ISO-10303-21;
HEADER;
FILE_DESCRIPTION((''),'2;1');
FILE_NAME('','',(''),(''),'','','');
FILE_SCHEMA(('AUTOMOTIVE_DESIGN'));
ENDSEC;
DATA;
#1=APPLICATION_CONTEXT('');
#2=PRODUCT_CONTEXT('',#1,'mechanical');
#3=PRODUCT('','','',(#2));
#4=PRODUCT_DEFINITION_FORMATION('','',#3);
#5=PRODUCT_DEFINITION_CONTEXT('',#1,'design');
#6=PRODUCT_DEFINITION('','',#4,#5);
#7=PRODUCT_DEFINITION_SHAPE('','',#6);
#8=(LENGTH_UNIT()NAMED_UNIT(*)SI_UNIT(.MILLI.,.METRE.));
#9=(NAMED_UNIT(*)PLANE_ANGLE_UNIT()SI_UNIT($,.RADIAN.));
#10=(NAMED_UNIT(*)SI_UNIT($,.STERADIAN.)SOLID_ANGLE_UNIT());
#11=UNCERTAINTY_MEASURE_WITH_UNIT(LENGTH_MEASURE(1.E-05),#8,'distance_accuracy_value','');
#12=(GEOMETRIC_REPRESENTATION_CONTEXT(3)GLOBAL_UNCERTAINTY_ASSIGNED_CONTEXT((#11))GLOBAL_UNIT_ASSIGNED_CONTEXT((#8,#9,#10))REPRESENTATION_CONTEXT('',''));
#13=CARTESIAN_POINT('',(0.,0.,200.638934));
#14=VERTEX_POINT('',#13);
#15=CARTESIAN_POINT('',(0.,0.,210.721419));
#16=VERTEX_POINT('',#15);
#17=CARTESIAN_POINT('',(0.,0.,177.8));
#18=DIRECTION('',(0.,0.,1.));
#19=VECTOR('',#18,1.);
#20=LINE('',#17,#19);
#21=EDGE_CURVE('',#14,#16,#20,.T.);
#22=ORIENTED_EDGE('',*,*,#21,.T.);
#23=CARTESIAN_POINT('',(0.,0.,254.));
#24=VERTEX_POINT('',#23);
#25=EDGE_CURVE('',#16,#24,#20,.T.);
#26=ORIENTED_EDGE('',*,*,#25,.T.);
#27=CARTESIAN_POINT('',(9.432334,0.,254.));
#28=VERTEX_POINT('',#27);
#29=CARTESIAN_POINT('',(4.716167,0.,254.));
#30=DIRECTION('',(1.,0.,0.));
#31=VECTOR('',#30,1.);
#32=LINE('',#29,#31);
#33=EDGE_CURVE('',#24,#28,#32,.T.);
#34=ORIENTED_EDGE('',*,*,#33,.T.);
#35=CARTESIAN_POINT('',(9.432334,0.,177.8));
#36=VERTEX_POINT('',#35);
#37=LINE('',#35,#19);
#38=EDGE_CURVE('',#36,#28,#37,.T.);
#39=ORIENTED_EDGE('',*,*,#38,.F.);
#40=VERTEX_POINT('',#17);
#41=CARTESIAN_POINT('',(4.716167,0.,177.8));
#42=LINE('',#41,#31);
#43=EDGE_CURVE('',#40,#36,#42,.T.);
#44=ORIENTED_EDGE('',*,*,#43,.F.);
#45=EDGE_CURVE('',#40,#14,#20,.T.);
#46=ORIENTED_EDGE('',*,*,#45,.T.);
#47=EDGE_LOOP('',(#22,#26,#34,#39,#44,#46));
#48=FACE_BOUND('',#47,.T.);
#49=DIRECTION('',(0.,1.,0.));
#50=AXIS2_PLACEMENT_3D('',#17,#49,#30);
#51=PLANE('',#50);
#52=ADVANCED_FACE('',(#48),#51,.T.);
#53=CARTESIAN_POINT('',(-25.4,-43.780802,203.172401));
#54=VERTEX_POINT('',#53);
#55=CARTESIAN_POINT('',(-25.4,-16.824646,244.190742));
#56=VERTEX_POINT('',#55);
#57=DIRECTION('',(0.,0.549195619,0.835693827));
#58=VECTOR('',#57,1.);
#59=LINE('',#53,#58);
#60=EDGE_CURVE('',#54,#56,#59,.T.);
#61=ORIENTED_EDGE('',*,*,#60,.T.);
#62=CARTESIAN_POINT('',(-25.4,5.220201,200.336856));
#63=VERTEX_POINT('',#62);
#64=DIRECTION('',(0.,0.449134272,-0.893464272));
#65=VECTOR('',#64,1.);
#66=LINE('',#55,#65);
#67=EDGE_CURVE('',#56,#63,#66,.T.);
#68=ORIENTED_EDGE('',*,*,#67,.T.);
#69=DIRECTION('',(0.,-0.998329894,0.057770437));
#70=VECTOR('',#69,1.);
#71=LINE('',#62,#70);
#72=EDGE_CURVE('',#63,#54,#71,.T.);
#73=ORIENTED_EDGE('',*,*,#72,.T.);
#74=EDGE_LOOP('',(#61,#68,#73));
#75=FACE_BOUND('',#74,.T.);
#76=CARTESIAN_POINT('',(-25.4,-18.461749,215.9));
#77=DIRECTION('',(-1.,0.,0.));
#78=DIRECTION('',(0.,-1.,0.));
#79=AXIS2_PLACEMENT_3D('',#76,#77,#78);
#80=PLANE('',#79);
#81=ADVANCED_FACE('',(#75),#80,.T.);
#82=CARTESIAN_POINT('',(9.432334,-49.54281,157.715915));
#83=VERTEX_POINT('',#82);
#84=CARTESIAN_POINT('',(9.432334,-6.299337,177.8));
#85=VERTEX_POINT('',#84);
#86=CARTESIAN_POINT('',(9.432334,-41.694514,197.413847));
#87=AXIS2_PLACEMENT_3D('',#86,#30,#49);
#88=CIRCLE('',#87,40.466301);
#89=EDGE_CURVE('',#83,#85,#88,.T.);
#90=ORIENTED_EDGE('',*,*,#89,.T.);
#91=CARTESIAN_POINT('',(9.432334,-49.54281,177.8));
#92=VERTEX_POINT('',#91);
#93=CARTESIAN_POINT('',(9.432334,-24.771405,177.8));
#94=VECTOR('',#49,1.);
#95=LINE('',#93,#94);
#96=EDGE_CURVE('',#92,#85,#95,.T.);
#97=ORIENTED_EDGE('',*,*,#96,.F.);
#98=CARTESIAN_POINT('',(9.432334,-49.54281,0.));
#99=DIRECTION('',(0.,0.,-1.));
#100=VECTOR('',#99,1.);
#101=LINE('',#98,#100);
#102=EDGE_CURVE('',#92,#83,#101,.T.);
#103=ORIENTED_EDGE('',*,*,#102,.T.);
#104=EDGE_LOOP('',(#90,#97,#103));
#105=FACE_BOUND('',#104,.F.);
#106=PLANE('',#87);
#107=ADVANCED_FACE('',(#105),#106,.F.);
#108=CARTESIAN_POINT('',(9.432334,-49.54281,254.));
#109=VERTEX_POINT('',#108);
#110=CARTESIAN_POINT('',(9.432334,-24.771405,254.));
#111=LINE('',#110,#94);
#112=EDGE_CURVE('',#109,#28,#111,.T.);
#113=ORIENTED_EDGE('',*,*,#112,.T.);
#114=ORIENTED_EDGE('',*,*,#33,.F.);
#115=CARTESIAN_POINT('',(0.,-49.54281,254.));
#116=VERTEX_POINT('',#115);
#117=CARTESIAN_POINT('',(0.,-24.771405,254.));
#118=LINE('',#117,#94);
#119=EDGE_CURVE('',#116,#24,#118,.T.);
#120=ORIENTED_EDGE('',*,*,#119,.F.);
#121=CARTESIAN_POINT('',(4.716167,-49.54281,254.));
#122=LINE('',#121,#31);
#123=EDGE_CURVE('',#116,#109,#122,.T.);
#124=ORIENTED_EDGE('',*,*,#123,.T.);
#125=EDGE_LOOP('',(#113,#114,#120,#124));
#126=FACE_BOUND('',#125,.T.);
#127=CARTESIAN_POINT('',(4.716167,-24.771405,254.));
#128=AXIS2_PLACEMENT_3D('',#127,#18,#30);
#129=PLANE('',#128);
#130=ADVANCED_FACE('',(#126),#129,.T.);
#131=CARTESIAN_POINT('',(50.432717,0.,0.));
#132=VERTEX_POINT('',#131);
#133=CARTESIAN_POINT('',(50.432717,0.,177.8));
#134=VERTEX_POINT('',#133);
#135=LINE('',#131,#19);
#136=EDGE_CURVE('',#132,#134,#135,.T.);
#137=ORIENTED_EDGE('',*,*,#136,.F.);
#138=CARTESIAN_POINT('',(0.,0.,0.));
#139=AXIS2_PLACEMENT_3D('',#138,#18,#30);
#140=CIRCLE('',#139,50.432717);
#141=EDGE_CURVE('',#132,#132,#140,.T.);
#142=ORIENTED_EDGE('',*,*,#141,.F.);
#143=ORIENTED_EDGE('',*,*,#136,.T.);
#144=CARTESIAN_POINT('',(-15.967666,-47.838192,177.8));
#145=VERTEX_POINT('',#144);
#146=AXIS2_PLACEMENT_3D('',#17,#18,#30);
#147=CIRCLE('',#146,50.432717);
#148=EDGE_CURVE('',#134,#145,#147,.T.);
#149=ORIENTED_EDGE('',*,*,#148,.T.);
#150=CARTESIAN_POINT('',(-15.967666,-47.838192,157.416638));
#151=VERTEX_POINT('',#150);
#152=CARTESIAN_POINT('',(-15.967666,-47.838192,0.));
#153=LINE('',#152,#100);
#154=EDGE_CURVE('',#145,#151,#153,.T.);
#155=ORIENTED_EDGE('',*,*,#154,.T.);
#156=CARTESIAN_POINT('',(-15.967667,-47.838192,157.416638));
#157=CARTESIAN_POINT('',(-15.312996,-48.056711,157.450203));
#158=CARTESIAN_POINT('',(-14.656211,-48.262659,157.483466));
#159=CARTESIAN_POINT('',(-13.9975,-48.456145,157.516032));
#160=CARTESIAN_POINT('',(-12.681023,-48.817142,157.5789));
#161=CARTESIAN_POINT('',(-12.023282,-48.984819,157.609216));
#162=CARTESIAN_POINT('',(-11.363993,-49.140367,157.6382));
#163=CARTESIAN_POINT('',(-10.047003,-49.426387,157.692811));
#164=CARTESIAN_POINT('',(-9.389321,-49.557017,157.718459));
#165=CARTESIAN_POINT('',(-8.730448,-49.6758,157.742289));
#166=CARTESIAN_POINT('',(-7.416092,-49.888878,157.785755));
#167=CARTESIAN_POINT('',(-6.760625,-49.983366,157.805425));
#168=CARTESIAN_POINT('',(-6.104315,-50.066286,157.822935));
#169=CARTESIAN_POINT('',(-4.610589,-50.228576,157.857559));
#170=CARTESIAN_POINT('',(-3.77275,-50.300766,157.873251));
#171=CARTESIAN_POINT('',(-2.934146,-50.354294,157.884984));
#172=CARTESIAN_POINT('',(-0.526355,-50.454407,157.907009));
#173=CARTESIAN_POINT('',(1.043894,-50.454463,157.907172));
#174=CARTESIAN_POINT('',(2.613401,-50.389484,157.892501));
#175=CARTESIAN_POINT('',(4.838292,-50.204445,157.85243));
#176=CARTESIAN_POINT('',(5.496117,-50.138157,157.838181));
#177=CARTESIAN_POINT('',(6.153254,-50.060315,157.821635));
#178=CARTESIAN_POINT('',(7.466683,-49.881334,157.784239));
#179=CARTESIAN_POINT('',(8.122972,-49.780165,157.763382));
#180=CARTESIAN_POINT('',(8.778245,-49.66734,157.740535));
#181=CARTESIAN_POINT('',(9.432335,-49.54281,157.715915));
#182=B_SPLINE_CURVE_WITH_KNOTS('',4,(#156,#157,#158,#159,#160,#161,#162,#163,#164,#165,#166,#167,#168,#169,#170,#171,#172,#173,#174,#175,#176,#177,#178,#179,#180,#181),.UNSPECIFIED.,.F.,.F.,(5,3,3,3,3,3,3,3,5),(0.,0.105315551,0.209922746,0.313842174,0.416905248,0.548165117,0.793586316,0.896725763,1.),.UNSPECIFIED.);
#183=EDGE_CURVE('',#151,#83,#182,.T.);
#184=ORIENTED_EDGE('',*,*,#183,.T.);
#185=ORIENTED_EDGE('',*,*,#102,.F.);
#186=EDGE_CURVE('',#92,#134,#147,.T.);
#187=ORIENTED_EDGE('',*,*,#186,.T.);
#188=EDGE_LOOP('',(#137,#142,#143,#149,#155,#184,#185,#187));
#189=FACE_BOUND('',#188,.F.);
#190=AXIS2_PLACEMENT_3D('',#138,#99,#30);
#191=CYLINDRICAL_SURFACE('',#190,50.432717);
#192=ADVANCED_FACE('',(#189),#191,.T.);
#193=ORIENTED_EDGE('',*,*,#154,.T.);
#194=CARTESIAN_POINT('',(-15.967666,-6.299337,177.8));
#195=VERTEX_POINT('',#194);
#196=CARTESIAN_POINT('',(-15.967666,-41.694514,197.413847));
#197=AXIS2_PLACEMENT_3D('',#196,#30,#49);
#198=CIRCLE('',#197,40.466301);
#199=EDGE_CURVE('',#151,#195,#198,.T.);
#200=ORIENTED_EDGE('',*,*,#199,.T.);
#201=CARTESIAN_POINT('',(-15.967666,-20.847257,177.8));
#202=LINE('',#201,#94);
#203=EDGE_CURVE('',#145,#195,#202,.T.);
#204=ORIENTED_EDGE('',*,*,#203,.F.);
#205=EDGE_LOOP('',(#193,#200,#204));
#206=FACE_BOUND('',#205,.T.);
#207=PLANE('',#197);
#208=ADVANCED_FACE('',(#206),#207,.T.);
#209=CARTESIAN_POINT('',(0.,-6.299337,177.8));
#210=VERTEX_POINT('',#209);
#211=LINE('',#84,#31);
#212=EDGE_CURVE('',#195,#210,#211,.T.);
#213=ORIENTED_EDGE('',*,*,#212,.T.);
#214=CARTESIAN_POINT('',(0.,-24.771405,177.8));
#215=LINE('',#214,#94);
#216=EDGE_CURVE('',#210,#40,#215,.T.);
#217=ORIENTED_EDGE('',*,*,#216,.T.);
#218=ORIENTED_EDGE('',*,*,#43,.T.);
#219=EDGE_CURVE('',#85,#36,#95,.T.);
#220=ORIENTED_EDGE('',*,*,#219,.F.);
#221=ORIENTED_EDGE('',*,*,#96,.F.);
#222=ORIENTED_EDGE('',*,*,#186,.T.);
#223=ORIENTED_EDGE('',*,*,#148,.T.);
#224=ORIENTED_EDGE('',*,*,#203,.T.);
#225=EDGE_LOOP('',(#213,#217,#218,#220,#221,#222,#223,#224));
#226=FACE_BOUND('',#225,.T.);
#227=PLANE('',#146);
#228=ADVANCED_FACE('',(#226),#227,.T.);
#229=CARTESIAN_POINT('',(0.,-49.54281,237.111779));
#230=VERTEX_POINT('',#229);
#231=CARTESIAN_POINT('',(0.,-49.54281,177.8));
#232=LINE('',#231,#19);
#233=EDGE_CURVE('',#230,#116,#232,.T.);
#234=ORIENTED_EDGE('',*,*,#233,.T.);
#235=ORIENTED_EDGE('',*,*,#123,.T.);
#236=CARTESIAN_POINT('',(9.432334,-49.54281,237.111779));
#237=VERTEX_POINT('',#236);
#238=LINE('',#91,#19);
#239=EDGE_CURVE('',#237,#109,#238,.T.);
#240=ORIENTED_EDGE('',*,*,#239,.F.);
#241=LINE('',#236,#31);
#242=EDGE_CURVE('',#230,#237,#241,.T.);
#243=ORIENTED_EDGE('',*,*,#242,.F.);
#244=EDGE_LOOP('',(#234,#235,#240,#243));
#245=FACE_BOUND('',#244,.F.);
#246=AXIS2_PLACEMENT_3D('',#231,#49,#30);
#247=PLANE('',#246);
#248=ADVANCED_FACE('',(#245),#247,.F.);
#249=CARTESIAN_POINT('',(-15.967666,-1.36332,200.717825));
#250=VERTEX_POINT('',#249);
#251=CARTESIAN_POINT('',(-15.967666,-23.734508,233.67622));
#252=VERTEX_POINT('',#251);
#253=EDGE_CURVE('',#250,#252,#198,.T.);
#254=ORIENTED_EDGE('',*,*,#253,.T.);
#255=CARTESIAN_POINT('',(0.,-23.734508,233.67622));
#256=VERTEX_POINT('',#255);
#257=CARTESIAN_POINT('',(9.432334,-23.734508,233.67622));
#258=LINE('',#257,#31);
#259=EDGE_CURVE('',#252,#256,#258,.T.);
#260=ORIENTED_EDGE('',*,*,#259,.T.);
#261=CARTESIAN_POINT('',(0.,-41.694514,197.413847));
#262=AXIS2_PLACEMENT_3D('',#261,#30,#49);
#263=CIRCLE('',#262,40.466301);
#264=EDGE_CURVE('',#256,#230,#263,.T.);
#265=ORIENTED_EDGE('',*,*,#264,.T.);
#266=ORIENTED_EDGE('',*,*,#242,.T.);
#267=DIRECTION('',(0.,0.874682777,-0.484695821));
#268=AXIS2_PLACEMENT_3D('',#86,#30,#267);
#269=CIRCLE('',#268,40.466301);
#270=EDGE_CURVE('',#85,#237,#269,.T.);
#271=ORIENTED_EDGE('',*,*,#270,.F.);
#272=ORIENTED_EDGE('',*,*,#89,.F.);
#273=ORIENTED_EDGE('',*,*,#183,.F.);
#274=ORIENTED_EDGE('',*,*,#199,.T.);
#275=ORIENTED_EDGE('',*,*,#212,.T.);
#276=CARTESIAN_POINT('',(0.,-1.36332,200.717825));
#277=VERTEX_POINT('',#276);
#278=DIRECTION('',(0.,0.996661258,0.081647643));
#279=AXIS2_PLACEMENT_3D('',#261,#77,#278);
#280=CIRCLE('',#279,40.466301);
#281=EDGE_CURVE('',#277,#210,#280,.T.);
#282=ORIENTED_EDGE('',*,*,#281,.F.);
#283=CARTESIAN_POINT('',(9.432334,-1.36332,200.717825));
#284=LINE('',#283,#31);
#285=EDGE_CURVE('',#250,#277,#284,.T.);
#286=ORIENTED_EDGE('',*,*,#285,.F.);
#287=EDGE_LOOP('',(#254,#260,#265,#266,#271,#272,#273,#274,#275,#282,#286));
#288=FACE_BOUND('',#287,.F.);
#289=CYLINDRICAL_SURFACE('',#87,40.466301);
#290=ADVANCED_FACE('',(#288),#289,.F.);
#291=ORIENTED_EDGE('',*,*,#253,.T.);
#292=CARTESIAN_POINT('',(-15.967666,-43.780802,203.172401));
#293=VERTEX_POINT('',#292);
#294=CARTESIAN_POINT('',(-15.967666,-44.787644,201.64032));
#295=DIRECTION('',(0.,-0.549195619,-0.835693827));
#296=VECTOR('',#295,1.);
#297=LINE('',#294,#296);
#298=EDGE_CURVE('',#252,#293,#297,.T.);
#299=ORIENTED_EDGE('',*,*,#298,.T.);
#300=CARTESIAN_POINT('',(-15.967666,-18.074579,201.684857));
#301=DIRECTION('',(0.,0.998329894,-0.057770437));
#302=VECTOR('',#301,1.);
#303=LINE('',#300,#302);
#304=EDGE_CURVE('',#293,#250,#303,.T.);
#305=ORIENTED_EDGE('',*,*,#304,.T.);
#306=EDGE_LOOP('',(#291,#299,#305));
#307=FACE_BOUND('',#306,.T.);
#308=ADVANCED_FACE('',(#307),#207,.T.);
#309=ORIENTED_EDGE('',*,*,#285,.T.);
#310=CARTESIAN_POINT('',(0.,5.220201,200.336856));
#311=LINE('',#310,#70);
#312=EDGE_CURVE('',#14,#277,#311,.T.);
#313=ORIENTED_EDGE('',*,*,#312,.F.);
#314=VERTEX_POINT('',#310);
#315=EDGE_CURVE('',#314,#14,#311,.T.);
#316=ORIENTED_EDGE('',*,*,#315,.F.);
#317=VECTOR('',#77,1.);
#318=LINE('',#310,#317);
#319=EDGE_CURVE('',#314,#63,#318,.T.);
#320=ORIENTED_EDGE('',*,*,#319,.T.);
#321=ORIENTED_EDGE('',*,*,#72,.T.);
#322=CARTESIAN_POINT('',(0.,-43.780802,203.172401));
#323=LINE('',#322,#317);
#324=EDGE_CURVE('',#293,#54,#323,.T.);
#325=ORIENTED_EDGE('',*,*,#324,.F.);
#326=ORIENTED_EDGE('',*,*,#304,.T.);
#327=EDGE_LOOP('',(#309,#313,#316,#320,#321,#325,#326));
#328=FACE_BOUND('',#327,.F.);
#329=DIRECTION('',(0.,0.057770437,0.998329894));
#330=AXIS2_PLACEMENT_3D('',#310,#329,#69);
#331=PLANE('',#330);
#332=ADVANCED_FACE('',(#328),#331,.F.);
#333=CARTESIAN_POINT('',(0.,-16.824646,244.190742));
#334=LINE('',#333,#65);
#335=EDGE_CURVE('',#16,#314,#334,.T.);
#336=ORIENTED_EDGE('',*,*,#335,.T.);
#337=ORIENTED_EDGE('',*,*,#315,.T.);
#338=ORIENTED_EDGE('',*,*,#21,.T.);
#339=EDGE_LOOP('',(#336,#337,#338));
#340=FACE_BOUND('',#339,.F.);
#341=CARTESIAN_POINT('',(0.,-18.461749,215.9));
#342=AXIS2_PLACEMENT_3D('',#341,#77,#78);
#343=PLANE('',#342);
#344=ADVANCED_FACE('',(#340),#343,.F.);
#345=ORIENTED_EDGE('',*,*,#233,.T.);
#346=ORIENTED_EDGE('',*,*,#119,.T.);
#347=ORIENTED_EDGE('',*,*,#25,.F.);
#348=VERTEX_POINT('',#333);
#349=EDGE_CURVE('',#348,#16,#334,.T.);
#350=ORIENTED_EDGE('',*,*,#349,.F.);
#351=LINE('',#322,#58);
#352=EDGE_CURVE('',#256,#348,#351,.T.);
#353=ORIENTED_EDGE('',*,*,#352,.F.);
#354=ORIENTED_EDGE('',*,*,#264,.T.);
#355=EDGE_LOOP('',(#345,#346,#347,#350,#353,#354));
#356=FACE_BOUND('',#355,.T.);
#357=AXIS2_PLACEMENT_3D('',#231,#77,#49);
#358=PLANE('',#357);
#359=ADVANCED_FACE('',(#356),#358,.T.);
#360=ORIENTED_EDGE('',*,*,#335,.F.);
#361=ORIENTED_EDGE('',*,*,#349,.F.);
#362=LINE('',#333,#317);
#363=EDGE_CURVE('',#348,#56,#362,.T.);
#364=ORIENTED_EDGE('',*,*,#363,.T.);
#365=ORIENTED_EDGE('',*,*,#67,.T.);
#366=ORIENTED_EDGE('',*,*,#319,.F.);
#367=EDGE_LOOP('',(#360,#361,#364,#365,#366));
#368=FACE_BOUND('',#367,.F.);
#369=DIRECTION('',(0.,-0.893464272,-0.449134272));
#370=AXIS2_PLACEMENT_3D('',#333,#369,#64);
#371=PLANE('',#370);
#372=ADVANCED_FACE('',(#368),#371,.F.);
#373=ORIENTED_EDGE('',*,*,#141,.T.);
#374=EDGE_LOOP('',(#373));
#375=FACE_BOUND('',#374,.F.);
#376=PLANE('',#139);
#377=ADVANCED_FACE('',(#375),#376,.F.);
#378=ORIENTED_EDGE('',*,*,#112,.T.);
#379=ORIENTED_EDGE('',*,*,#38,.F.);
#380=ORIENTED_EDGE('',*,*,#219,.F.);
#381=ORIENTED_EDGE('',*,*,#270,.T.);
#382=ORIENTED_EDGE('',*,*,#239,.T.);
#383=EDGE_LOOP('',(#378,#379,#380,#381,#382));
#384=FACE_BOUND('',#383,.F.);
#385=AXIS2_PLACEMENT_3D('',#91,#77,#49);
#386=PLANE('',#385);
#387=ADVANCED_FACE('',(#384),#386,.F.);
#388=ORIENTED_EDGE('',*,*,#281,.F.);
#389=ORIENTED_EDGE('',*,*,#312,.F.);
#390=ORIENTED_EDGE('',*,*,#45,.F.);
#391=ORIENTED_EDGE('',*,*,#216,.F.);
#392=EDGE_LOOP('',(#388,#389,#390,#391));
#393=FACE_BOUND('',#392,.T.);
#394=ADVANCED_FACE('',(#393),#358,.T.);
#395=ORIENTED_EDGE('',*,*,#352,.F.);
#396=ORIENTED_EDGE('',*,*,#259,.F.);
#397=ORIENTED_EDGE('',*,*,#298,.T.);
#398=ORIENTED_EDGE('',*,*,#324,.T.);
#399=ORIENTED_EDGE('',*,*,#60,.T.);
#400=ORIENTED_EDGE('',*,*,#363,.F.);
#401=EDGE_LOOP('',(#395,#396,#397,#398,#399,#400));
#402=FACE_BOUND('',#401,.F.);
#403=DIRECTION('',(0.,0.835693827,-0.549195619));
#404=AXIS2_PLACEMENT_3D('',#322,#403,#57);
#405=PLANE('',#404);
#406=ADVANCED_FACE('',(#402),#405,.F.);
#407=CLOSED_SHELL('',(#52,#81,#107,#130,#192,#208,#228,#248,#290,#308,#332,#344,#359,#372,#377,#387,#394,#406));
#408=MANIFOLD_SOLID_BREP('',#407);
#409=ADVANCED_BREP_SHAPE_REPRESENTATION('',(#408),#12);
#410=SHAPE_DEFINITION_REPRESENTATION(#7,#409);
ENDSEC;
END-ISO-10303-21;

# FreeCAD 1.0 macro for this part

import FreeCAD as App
import Part
import Sketcher
from FreeCAD import Vector
Q = App.Units.Quantity


def add_polygon(sketch, points):
    """Adds a closed chain of lines whose ends are joined by coincident constraints."""
    first, n = sketch.GeometryCount, len(points)
    for a, b in zip(points, points[1:] + points[:1]):
        sketch.addGeometry(Part.LineSegment(App.Vector(*a, 0), App.Vector(*b, 0)), False)
    for i in range(n):
        sketch.addConstraint(Sketcher.Constraint("Coincident", first + i, 2, first + (i + 1) % n, 1))

doc = App.newDocument("Part")
body = doc.addObject("PartDesign::Body", "Body")

# Sketch on XY plane
sketch1 = body.newObject("Sketcher::SketchObject", "Sketch")
sketch1.AttachmentSupport = (doc.getObject("XY_Plane"), [""])
sketch1.MapMode = "FlatFace"
sketch1.addGeometry(Part.Circle(Vector(0, 0, 0), Vector(0, 0, 1), 50), False)
sketch1.addConstraint([
    Sketcher.Constraint("Coincident", 0, 3, -1, 1),
    Sketcher.Constraint("Diameter", 0, Q("100.865434 mm")),
])
pad1 = body.newObject("PartDesign::Pad", "Pad")
pad1.Profile = sketch1
pad1.Length = Q("7 in")

# Sketch on XY plane
sketch2 = body.newObject("Sketcher::SketchObject", "Sketch001")
sketch2.AttachmentSupport = (doc.getObject("XY_Plane"), [""])
sketch2.MapMode = "FlatFace"
sketch2.AttachmentOffset = App.Placement(Vector(0, 0, 7 * 25.4), App.Rotation())
add_polygon(sketch2, [(0, 0), (0, -50), (9, -50), (9, 0)])  # lines 0-3
sketch2.addConstraint([
    Sketcher.Constraint("Vertical", 0),
    Sketcher.Constraint("Horizontal", 1),
    Sketcher.Constraint("Vertical", 2),
    Sketcher.Constraint("Horizontal", 3),
    Sketcher.Constraint("Coincident", 3, 2, -1, 1),
    Sketcher.Constraint("DistanceY", 0, 2, 0, 1, Q("49.54281 mm")),
    Sketcher.Constraint("DistanceX", 1, 1, 1, 2, Q("9.432334 mm")),
])
pad2 = body.newObject("PartDesign::Pad", "Pad001")
pad2.Profile = sketch2
pad2.Length = Q("3 in")

# Sketch on YZ plane
sketch3 = body.newObject("Sketcher::SketchObject", "Sketch002")
sketch3.AttachmentSupport = (doc.getObject("YZ_Plane"), [""])
sketch3.MapMode = "FlatFace"
add_polygon(sketch3, [(-17, 244), (5, 200), (-44, 203)])  # lines 0-2
sketch3.addConstraint([
    Sketcher.Constraint("Equal", 0, 1),
    Sketcher.Constraint("Equal", 1, 2),
    Sketcher.Constraint("DistanceX", -1, 1, 0, 2, Q("5.220201 mm")),
    Sketcher.Constraint("DistanceY", -1, 1, 1, 2, Q("203.172401 mm")),
    Sketcher.Constraint("DistanceY", -1, 1, 2, 2, Q("244.190742 mm")),
    Sketcher.Constraint("Distance", 0, Q("49.082977 mm")),
])
pad3 = body.newObject("PartDesign::Pad", "Pad002")
pad3.Profile = sketch3
pad3.Length = Q("1 in")
pad3.Reversed = True

# Sketch on YZ plane
sketch4 = body.newObject("Sketcher::SketchObject", "Sketch003")
sketch4.AttachmentSupport = (doc.getObject("YZ_Plane"), [""])
sketch4.MapMode = "FlatFace"
sketch4.AttachmentOffset = App.Placement(Vector(0, 0, 9.432334), App.Rotation())
sketch4.addGeometry(Part.Circle(Vector(-42, 197, 0), Vector(0, 0, 1), 40), False)
sketch4.addConstraint([
    Sketcher.Constraint("Diameter", 0, Q("80.932602 mm")),
    Sketcher.Constraint("DistanceX", 0, 3, -1, 1, Q("41.694514 mm")),
    Sketcher.Constraint("DistanceY", -1, 1, 0, 3, Q("197.413847 mm")),
])
pocket1 = body.newObject("PartDesign::Pocket", "Pocket")
pocket1.Profile = sketch4
pocket1.Length = Q("1 in")

doc.recompute()
